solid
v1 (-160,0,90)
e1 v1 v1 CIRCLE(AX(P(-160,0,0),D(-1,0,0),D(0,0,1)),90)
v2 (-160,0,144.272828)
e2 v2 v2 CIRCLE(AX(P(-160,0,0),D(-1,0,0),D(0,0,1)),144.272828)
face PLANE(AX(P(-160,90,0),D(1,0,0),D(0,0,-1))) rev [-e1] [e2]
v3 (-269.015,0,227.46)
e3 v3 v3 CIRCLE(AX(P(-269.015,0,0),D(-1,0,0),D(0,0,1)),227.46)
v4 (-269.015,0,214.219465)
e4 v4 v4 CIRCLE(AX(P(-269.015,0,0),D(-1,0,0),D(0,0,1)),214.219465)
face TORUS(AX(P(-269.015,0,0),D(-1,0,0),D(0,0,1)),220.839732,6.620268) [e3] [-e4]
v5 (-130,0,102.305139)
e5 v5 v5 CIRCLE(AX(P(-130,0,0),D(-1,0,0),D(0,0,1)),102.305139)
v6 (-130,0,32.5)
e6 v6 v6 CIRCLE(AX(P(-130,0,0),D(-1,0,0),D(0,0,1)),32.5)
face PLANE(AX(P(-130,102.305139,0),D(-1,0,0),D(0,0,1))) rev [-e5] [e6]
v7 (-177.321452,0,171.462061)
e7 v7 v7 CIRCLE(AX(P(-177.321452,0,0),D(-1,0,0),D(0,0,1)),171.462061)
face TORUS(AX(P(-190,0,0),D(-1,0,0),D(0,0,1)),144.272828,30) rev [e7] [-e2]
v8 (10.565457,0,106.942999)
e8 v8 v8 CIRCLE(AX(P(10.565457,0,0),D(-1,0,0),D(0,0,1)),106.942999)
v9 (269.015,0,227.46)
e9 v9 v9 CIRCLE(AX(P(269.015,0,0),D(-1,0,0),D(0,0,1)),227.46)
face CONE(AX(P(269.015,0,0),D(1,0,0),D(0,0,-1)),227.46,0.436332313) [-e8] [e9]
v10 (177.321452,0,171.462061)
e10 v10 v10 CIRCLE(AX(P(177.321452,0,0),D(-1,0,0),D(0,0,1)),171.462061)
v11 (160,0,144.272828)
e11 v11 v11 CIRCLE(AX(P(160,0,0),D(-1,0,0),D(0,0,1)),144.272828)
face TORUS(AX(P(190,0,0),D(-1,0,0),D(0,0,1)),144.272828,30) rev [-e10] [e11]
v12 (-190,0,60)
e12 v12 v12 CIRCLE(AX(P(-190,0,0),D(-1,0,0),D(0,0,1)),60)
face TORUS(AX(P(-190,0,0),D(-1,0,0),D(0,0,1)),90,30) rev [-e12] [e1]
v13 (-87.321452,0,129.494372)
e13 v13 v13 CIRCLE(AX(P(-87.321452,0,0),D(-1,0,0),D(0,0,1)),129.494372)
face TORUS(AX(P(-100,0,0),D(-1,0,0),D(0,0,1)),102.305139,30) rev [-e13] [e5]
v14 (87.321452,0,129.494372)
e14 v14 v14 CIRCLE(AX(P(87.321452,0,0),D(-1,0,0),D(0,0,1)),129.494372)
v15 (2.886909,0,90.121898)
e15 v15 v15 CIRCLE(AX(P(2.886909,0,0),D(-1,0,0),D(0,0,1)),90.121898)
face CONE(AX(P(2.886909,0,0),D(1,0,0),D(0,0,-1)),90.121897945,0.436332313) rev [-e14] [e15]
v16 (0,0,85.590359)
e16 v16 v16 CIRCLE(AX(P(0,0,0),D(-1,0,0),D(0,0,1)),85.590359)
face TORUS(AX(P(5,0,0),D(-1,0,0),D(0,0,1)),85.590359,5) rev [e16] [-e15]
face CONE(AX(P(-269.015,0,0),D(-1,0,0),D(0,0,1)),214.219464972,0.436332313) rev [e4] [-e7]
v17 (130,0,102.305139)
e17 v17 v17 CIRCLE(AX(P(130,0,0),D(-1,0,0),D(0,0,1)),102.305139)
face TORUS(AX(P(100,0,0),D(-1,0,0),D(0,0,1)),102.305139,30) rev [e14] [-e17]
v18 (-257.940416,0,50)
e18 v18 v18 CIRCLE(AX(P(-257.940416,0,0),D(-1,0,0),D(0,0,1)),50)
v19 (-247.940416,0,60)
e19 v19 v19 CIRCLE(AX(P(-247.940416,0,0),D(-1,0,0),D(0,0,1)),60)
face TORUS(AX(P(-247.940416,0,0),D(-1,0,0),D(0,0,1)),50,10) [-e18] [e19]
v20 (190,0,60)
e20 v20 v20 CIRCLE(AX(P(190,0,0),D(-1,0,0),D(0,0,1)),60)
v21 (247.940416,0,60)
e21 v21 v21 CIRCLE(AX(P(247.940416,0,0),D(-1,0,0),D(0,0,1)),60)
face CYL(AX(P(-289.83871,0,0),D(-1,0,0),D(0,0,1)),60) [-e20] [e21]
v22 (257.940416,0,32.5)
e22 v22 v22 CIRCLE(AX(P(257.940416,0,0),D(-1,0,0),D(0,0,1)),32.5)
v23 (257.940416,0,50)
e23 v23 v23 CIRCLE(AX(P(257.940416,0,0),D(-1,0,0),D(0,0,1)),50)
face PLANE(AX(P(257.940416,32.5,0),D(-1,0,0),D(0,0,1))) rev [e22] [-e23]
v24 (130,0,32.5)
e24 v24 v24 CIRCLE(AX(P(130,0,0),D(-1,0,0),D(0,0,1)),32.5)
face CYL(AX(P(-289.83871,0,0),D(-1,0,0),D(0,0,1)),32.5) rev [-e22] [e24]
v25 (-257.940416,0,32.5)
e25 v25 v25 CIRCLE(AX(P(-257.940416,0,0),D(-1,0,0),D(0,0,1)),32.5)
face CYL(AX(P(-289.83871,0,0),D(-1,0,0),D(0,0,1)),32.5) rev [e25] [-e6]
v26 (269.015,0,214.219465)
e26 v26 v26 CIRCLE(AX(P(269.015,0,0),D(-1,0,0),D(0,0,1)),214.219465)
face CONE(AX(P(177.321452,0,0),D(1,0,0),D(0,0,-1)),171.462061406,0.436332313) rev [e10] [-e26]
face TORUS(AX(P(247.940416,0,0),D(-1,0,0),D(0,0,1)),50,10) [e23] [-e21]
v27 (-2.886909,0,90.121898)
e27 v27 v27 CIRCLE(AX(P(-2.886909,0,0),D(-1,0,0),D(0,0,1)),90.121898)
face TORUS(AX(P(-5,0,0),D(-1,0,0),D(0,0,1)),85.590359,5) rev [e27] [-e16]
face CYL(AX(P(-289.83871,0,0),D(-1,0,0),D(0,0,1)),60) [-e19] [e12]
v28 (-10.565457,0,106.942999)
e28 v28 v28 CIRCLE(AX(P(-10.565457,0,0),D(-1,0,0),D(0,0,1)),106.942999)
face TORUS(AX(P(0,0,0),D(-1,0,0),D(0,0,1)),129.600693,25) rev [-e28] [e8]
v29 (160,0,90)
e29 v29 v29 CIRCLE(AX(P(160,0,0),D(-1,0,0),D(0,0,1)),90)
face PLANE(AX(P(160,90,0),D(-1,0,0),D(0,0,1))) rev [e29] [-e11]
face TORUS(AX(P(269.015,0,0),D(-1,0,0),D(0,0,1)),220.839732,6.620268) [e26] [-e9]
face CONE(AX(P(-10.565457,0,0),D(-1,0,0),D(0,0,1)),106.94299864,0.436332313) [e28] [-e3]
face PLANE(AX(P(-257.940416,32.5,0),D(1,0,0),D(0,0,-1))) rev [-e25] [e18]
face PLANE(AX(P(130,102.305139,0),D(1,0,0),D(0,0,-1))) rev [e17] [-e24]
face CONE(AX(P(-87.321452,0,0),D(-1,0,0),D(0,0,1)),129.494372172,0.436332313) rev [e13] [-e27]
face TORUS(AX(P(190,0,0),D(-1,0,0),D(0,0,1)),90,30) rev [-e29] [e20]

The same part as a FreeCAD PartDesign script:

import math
import FreeCAD as App
import Part
import Sketcher
Q = App.Units.Quantity

doc = App.newDocument("Part")
params = doc.addObject("Spreadsheet::Sheet", "Params")
for row, (alias, value) in enumerate([
    ("sketch1_radius", "5 mm"),
    ("sketch1_radius2", "30 mm"),
    ("sketch1_radius3", "10 mm"),
    ("sketch1_radius4", "25 mm"),
    ("sketch1_height", "17.5 mm"),
    ("revolution_angle", "360 deg"),
], start=1):
    params.set(f"A{row}", alias)
    params.set(f"B{row}", "=" + value)
    params.setAlias(f"B{row}", alias)

body = doc.addObject("PartDesign::Body", "Body")

sketch1 = body.newObject("Sketcher::SketchObject", "Sketch")
sketch1.AttachmentSupport = (doc.getObject("XY_Plane"), [""])
sketch1.MapMode = "FlatFace"
sketch1.addGeometry([
    Part.LineSegment(App.Vector(-87.321452, 129.494372, 0), App.Vector(-2.886909, 90.121898, 0)),
    Part.ArcOfCircle(Part.Circle(App.Vector(-5, 85.590359, 0), App.Vector(0, 0, 1), 5), math.radians(0), math.radians(65)),
    Part.ArcOfCircle(Part.Circle(App.Vector(5, 85.590359, 0), App.Vector(0, 0, 1), 5), math.radians(115), math.radians(180)),
    Part.LineSegment(App.Vector(2.886909, 90.121898, 0), App.Vector(87.321452, 129.494372, 0)),
    Part.ArcOfCircle(Part.Circle(App.Vector(100, 102.305139, 0), App.Vector(0, 0, 1), 30), math.radians(0), math.radians(115)),
    Part.LineSegment(App.Vector(130, 102.305139, 0), App.Vector(130, 32.5, 0)),
    Part.LineSegment(App.Vector(130, 32.5, 0), App.Vector(257.940416, 32.5, 0)),
    Part.LineSegment(App.Vector(257.940416, 32.5, 0), App.Vector(257.940416, 50, 0)),
    Part.ArcOfCircle(Part.Circle(App.Vector(247.940416, 50, 0), App.Vector(0, 0, 1), 10), math.radians(0), math.radians(90)),
    Part.LineSegment(App.Vector(247.940416, 60, 0), App.Vector(190, 60, 0)),
    Part.ArcOfCircle(Part.Circle(App.Vector(190, 90, 0), App.Vector(0, 0, 1), 30), math.radians(180), math.radians(270)),
    Part.LineSegment(App.Vector(160, 90, 0), App.Vector(160, 144.272828, 0)),
    Part.ArcOfCircle(Part.Circle(App.Vector(190, 144.272828, 0), App.Vector(0, 0, 1), 30), math.radians(115), math.radians(180)),
    Part.LineSegment(App.Vector(177.321452, 171.462061, 0), App.Vector(269.015, 214.219465, 0)),
    Part.ArcOfCircle(Part.Circle(App.Vector(269.015, 220.839732, 0), App.Vector(0, 0, 1), 6.620268), math.radians(-90), math.radians(90)),
    Part.LineSegment(App.Vector(269.015, 227.46, 0), App.Vector(10.565457, 106.942999, 0)),
    Part.ArcOfCircle(Part.Circle(App.Vector(0, 129.600693, 0), App.Vector(0, 0, 1), 25), math.radians(-115), math.radians(-65)),
    Part.LineSegment(App.Vector(-10.565457, 106.942999, 0), App.Vector(-269.015, 227.46, 0)),
    Part.ArcOfCircle(Part.Circle(App.Vector(-269.015, 220.839732, 0), App.Vector(0, 0, 1), 6.620268), math.radians(90), math.radians(270)),
    Part.LineSegment(App.Vector(-269.015, 214.219465, 0), App.Vector(-177.321452, 171.462061, 0)),
    Part.ArcOfCircle(Part.Circle(App.Vector(-190, 144.272828, 0), App.Vector(0, 0, 1), 30), math.radians(0), math.radians(65)),
    Part.LineSegment(App.Vector(-160, 144.272828, 0), App.Vector(-160, 90, 0)),
    Part.ArcOfCircle(Part.Circle(App.Vector(-190, 90, 0), App.Vector(0, 0, 1), 30), math.radians(-90), math.radians(0)),
    Part.LineSegment(App.Vector(-190, 60, 0), App.Vector(-247.940416, 60, 0)),
    Part.ArcOfCircle(Part.Circle(App.Vector(-247.940416, 50, 0), App.Vector(0, 0, 1), 10), math.radians(90), math.radians(180)),
    Part.LineSegment(App.Vector(-257.940416, 50, 0), App.Vector(-257.940416, 32.5, 0)),
    Part.LineSegment(App.Vector(-257.940416, 32.5, 0), App.Vector(-130, 32.5, 0)),
    Part.LineSegment(App.Vector(-130, 32.5, 0), App.Vector(-130, 102.305139, 0)),
    Part.ArcOfCircle(Part.Circle(App.Vector(-100, 102.305139, 0), App.Vector(0, 0, 1), 30), math.radians(65), math.radians(180)),
], False)
sketch1.addConstraint([
    Sketcher.Constraint("Tangent", 0, 2, 1, 2),
    Sketcher.Constraint("Tangent", 1, 1, 2, 2),
    Sketcher.Constraint("Tangent", 2, 1, 3, 1),
    Sketcher.Constraint("Tangent", 3, 2, 4, 2),
    Sketcher.Constraint("Tangent", 4, 1, 5, 1),
    Sketcher.Constraint("Coincident", 5, 2, 6, 1),
    Sketcher.Constraint("Coincident", 6, 2, 7, 1),
    Sketcher.Constraint("Tangent", 7, 2, 8, 1),
    Sketcher.Constraint("Tangent", 8, 2, 9, 1),
    Sketcher.Constraint("Tangent", 9, 2, 10, 2),
    Sketcher.Constraint("Tangent", 10, 1, 11, 1),
    Sketcher.Constraint("Tangent", 11, 2, 12, 2),
    Sketcher.Constraint("Tangent", 12, 1, 13, 1),
    Sketcher.Constraint("Coincident", 13, 2, 14, 1),
    Sketcher.Constraint("Coincident", 14, 2, 15, 1),
    Sketcher.Constraint("Tangent", 15, 2, 16, 2),
    Sketcher.Constraint("Tangent", 16, 1, 17, 1),
    Sketcher.Constraint("Coincident", 17, 2, 18, 1),
    Sketcher.Constraint("Coincident", 18, 2, 19, 1),
    Sketcher.Constraint("Tangent", 19, 2, 20, 2),
    Sketcher.Constraint("Tangent", 20, 1, 21, 1),
    Sketcher.Constraint("Tangent", 21, 2, 22, 2),
    Sketcher.Constraint("Tangent", 22, 1, 23, 1),
    Sketcher.Constraint("Tangent", 23, 2, 24, 1),
    Sketcher.Constraint("Tangent", 24, 2, 25, 1),
    Sketcher.Constraint("Coincident", 25, 2, 26, 1),
    Sketcher.Constraint("Coincident", 26, 2, 27, 1),
    Sketcher.Constraint("Tangent", 27, 2, 28, 2),
    Sketcher.Constraint("Tangent", 28, 1, 0, 1),
    Sketcher.Constraint("Vertical", 5),
    Sketcher.Constraint("Horizontal", 6),
    Sketcher.Constraint("Vertical", 7),
    Sketcher.Constraint("Horizontal", 9),
    Sketcher.Constraint("Vertical", 11),
    Sketcher.Constraint("Vertical", 21),
    Sketcher.Constraint("Horizontal", 23),
    Sketcher.Constraint("Vertical", 25),
    Sketcher.Constraint("Horizontal", 26),
    Sketcher.Constraint("Vertical", 27),
    Sketcher.Constraint("Equal", 1, 2),
    Sketcher.Constraint("Equal", 4, 10),
    Sketcher.Constraint("Equal", 10, 12),
    Sketcher.Constraint("Equal", 14, 18),
    Sketcher.Constraint("Equal", 12, 20),
    Sketcher.Constraint("Equal", 20, 22),
    Sketcher.Constraint("Equal", 8, 24),
    Sketcher.Constraint("Equal", 22, 28),
    Sketcher.Constraint("Symmetric", 1, 3, 2, 3, -2),
    Sketcher.Constraint("Symmetric", 14, 3, 18, 3, -2),
    Sketcher.Constraint("Symmetric", 12, 3, 20, 3, -2),
    Sketcher.Constraint("Symmetric", 8, 3, 24, 3, -2),
    Sketcher.Constraint("Symmetric", 4, 3, 28, 3, -2),
    Sketcher.Constraint("PointOnObject", 16, 3, -2),
    Sketcher.Constraint("Parallel", 3, 13),
    Sketcher.Constraint("Parallel", 13, 15),
    Sketcher.Constraint("Parallel", 0, 17),
    Sketcher.Constraint("Parallel", 17, 19),
    Sketcher.Constraint("Horizontal", 6, 2, 25, 2),
    Sketcher.Constraint("Vertical", 14, 3, 13, 2),
    Sketcher.Constraint("Vertical", 13, 2, 14, 2),
    Sketcher.Constraint("Radius", 1, Q("5 mm")),
    Sketcher.Constraint("Radius", 4, Q("30 mm")),
    Sketcher.Constraint("Radius", 8, Q("10 mm")),
    Sketcher.Constraint("Radius", 16, Q("25 mm")),
    Sketcher.Constraint("Angle", 0, Q("-25 deg")),
    Sketcher.Constraint("DistanceY", 7, 1, 7, 2, Q("17.5 mm")),
    Sketcher.Constraint("DistanceX", -1, 1, 4, 3, Q("100 mm")),
    Sketcher.Constraint("DistanceY", -1, 1, 8, 3, Q("50 mm")),
    Sketcher.Constraint("DistanceX", -1, 1, 10, 3, Q("190 mm")),
    Sketcher.Constraint("DistanceY", -1, 1, 14, 2, Q("227.46 mm")),
    Sketcher.Constraint("DistanceX", -1, 1, 14, 3, Q("269.015 mm")),
    Sketcher.Constraint("Radius", 14, Q("6.620268 mm")),
    Sketcher.Constraint("DistanceY", 5, 2, 5, 1, Q("69.805139 mm")),
    Sketcher.Constraint("DistanceX", 6, 1, 6, 2, Q("127.940416 mm")),
])
sketch1.setExpression("Constraints[60]", "Params.sketch1_radius")
sketch1.setExpression("Constraints[61]", "Params.sketch1_radius2")
sketch1.setExpression("Constraints[62]", "Params.sketch1_radius3")
sketch1.setExpression("Constraints[63]", "Params.sketch1_radius4")
sketch1.setExpression("Constraints[65]", "Params.sketch1_height")
revolution = body.newObject("PartDesign::Revolution", "Revolution")
revolution.Profile = sketch1
revolution.ReferenceAxis = (sketch1, ["H_Axis"])
revolution.setExpression("Angle", "Params.revolution_angle")

doc.recompute()
